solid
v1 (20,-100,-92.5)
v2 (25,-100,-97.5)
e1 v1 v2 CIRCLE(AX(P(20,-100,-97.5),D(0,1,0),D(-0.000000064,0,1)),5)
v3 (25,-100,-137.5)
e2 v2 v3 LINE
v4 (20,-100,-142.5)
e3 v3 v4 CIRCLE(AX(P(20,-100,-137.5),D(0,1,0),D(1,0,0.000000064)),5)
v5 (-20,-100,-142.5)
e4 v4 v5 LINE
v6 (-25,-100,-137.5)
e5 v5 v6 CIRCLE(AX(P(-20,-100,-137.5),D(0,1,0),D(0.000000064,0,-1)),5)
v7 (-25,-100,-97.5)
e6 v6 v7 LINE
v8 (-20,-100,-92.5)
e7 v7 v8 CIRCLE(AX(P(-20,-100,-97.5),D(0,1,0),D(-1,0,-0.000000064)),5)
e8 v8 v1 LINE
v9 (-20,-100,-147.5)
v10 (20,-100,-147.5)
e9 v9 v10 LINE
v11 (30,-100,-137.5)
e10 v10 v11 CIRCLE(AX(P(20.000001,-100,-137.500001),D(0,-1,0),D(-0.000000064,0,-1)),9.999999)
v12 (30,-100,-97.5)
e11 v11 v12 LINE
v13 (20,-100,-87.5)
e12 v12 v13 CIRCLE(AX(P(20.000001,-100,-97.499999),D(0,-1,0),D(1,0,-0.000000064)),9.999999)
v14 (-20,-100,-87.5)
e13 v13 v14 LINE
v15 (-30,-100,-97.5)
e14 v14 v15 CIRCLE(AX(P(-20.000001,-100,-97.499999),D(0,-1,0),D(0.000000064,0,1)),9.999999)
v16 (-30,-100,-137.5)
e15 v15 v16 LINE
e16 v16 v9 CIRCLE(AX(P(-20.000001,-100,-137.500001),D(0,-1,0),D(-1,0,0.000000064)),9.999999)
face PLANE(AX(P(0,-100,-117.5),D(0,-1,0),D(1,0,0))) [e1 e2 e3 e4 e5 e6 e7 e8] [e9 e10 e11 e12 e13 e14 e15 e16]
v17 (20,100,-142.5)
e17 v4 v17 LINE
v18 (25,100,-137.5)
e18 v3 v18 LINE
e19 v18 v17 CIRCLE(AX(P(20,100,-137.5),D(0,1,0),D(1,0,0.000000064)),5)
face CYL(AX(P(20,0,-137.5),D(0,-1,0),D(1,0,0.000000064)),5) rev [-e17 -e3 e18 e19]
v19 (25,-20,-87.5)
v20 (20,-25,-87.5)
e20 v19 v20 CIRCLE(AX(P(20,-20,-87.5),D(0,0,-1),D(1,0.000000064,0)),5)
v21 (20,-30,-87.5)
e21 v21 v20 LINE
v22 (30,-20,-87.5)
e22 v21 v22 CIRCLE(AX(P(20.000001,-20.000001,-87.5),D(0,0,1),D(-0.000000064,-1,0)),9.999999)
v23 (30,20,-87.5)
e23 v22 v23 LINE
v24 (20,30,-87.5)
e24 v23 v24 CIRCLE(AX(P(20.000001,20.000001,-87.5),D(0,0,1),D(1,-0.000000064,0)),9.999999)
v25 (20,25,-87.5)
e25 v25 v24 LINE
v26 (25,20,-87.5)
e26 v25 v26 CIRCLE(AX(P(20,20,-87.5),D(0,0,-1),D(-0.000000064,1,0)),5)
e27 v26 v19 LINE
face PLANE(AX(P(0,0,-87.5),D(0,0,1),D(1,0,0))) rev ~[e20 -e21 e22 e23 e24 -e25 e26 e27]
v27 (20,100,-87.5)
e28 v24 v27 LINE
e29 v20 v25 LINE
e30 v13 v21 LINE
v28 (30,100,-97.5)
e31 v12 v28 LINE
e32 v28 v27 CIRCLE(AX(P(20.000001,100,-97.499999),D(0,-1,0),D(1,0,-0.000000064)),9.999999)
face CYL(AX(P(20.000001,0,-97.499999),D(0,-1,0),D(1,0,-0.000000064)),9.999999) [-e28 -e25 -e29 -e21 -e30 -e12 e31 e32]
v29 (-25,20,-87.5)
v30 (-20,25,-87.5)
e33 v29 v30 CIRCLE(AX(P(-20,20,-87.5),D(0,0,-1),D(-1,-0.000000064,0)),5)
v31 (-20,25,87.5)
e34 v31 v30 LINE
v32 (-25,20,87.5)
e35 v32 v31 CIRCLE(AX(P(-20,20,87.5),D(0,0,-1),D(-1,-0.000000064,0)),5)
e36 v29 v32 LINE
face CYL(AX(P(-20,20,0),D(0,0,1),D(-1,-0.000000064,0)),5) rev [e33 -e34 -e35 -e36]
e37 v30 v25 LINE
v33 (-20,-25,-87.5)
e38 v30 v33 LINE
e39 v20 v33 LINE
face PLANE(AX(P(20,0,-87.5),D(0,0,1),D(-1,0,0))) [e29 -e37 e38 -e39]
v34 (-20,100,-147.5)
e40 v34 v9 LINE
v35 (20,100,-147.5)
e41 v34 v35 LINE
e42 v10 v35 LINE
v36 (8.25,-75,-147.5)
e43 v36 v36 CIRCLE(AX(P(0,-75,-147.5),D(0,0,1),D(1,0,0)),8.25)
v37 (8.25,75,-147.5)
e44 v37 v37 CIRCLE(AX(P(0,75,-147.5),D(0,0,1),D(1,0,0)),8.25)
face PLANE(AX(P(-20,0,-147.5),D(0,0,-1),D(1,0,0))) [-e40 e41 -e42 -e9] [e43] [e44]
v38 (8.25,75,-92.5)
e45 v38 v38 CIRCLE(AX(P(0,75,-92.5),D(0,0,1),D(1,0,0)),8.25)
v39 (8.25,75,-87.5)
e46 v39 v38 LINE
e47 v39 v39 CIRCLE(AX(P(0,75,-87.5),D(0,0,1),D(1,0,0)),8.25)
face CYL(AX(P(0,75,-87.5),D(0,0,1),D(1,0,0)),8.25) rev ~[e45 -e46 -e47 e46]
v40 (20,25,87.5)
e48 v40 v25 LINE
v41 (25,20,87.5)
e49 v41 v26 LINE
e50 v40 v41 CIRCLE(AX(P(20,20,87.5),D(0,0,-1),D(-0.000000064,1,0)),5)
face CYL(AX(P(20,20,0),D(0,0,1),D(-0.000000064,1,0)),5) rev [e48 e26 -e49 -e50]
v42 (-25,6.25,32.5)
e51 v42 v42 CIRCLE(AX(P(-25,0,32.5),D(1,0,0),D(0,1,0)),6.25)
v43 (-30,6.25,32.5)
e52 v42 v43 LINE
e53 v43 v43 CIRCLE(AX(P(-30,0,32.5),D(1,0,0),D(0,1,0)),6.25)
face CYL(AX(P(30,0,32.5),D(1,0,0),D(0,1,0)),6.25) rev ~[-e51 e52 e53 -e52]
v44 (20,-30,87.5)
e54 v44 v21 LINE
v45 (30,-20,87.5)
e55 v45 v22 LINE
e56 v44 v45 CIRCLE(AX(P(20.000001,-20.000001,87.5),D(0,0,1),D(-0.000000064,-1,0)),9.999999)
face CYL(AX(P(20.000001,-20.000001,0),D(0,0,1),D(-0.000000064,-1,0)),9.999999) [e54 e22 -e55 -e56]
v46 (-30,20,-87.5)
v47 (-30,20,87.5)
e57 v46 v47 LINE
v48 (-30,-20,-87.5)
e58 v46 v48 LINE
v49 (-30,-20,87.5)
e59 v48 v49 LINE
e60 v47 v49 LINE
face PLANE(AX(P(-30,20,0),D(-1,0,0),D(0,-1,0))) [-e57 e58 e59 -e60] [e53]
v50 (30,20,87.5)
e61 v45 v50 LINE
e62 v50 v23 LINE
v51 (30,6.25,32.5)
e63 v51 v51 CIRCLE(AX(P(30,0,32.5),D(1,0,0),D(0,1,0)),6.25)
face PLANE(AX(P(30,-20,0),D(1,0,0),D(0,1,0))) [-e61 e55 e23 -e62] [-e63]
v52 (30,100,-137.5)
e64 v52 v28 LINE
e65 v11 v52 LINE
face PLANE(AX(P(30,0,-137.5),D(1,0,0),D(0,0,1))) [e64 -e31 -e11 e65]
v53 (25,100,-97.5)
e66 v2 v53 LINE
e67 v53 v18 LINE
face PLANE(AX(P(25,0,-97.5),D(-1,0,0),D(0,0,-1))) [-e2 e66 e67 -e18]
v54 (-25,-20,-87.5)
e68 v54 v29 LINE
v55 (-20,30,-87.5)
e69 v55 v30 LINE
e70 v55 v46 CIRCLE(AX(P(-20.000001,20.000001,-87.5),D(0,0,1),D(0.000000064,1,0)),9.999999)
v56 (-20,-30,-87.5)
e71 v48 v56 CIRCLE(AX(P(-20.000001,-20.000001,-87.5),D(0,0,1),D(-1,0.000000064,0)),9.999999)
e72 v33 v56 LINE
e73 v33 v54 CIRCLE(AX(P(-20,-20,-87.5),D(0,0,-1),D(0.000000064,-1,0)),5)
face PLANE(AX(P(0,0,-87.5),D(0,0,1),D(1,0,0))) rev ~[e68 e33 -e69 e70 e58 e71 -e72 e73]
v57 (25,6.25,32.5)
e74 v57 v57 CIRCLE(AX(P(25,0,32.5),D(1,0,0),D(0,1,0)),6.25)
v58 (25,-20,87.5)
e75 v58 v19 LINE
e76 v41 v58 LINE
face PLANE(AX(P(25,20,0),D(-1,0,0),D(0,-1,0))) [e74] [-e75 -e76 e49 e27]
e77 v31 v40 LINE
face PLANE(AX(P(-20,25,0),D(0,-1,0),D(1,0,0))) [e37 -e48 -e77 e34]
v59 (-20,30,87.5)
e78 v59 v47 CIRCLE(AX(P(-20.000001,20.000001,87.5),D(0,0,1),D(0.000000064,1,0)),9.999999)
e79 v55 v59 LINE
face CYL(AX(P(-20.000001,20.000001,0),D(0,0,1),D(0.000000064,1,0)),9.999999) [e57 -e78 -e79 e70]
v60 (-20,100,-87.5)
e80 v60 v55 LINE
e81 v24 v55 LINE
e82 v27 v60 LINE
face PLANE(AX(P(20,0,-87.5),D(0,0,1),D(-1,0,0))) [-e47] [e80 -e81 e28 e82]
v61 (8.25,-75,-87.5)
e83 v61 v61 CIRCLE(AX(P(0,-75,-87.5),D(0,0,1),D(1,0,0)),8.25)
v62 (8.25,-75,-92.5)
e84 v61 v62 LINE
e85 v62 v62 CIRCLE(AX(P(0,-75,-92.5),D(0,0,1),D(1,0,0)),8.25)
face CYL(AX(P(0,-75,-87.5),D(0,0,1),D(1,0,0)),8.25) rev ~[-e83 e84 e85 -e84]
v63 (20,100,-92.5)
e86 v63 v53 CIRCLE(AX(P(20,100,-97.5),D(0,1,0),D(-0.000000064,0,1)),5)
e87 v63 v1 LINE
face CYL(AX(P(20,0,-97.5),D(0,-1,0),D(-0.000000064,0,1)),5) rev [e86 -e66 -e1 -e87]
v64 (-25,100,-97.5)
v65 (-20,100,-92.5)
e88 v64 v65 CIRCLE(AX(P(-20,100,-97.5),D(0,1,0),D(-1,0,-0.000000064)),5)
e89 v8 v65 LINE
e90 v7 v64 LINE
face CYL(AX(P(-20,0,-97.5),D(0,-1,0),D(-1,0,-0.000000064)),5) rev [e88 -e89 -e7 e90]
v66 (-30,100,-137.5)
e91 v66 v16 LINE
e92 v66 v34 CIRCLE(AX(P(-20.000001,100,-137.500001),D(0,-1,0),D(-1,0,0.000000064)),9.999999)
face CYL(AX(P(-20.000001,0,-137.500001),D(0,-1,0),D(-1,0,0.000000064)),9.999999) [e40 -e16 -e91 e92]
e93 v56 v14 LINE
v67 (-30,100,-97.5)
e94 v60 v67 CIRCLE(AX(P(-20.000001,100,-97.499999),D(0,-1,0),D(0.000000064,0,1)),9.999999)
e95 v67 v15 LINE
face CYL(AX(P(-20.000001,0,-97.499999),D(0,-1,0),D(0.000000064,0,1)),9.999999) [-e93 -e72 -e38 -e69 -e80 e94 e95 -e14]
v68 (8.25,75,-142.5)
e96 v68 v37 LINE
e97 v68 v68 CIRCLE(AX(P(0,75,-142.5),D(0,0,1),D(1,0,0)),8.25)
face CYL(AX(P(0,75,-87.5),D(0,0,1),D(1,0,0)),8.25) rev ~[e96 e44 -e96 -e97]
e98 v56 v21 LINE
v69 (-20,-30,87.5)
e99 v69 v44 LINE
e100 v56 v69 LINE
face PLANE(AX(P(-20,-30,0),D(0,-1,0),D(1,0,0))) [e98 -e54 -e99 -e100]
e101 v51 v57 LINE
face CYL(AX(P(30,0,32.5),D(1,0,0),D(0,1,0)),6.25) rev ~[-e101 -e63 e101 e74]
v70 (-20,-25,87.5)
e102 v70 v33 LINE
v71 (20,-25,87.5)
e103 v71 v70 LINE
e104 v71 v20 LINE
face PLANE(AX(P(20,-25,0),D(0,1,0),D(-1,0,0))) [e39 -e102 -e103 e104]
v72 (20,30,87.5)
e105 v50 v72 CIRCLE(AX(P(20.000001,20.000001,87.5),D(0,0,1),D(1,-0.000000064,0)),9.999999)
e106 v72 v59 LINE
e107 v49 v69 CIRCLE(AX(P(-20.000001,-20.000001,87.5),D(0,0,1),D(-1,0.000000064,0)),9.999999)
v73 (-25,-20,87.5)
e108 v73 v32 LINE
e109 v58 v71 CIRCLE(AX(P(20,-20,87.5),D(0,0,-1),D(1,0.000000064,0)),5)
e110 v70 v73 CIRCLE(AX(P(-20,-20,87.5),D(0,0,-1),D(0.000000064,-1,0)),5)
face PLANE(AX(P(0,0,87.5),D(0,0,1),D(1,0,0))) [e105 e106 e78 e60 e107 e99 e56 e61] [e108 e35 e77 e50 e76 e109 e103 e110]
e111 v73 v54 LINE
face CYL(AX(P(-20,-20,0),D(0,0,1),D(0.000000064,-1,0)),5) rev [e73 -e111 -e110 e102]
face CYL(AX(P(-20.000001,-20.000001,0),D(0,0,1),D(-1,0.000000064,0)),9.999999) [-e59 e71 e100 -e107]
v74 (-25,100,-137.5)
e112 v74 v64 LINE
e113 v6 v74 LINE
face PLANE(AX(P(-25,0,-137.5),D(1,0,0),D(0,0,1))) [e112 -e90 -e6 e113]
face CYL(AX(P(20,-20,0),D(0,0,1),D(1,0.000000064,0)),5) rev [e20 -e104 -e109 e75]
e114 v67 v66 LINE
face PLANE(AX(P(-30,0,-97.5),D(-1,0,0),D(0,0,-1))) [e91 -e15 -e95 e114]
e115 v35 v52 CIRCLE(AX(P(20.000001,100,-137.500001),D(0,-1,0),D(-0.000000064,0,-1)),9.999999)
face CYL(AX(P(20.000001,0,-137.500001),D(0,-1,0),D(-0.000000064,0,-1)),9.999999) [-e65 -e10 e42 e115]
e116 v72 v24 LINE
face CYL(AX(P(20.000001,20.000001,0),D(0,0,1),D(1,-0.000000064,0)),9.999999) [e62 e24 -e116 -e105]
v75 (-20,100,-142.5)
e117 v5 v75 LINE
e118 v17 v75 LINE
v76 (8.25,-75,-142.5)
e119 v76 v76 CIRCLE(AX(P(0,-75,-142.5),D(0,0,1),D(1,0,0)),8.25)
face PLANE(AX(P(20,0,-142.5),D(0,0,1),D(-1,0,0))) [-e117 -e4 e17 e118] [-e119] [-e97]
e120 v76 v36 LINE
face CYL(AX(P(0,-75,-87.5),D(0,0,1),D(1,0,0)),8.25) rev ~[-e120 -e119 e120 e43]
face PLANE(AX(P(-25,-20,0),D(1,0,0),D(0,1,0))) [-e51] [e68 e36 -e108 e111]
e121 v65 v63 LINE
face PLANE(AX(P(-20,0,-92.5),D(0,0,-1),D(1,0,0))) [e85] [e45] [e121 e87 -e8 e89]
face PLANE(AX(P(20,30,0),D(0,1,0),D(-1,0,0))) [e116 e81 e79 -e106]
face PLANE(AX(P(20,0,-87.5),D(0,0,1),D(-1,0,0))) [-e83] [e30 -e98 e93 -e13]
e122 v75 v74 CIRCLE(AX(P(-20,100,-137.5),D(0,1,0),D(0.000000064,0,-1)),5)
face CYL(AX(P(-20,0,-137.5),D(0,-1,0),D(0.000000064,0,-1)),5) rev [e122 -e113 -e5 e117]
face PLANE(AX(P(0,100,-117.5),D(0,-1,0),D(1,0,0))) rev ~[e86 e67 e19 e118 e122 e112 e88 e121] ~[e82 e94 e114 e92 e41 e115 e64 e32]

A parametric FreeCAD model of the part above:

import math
import FreeCAD as App
import Part
import Sketcher
Q = App.Units.Quantity

doc = App.newDocument("Part")
body = doc.addObject("PartDesign::Body", "Body")

# Sketch on XY plane
sketch1 = body.newObject("Sketcher::SketchObject", "Sketch")
sketch1.AttachmentSupport = (doc.getObject("XY_Plane"), [""])
sketch1.MapMode = "FlatFace"
sketch1.addGeometry([
    Part.LineSegment(App.Vector(20, 30, 0), App.Vector(-20, 30, 0)),  # 0
    Part.ArcOfCircle(Part.Circle(App.Vector(-20, 20, 0), App.Vector(0, 0, 1), 10), math.radians(90), math.radians(180)),  # 1
    Part.LineSegment(App.Vector(-30, 20, 0), App.Vector(-30, -20, 0)),  # 2
    Part.ArcOfCircle(Part.Circle(App.Vector(-20, -20, 0), App.Vector(0, 0, 1), 10), math.radians(180), math.radians(270)),  # 3
    Part.LineSegment(App.Vector(-20, -30, 0), App.Vector(20, -30, 0)),  # 4
    Part.ArcOfCircle(Part.Circle(App.Vector(20, -20, 0), App.Vector(0, 0, 1), 10), math.radians(-90), math.radians(0)),  # 5
    Part.LineSegment(App.Vector(30, -20, 0), App.Vector(30, 20, 0)),  # 6
    Part.ArcOfCircle(Part.Circle(App.Vector(20, 20, 0), App.Vector(0, 0, 1), 10), math.radians(0), math.radians(90)),  # 7
    Part.LineSegment(App.Vector(-25, -20, 0), App.Vector(-25, 20, 0)),  # 8
    Part.ArcOfCircle(Part.Circle(App.Vector(-20, 20, 0), App.Vector(0, 0, 1), 5), math.radians(90), math.radians(180)),  # 9
    Part.LineSegment(App.Vector(-20, 25, 0), App.Vector(20, 25, 0)),  # 10
    Part.ArcOfCircle(Part.Circle(App.Vector(20, 20, 0), App.Vector(0, 0, 1), 5), math.radians(0), math.radians(90)),  # 11
    Part.LineSegment(App.Vector(25, 20, 0), App.Vector(25, -20, 0)),  # 12
    Part.ArcOfCircle(Part.Circle(App.Vector(20, -20, 0), App.Vector(0, 0, 1), 5), math.radians(-90), math.radians(0)),  # 13
    Part.LineSegment(App.Vector(20, -25, 0), App.Vector(-20, -25, 0)),  # 14
    Part.ArcOfCircle(Part.Circle(App.Vector(-20, -20, 0), App.Vector(0, 0, 1), 5), math.radians(180), math.radians(270)),  # 15
], False)
sketch1.addConstraint([
    Sketcher.Constraint("Tangent", 0, 2, 1, 1),
    Sketcher.Constraint("Tangent", 1, 2, 2, 1),
    Sketcher.Constraint("Tangent", 2, 2, 3, 1),
    Sketcher.Constraint("Tangent", 3, 2, 4, 1),
    Sketcher.Constraint("Tangent", 4, 2, 5, 1),
    Sketcher.Constraint("Tangent", 5, 2, 6, 1),
    Sketcher.Constraint("Tangent", 6, 2, 7, 1),
    Sketcher.Constraint("Tangent", 7, 2, 0, 1),
    Sketcher.Constraint("Tangent", 8, 2, 9, 2),
    Sketcher.Constraint("Tangent", 9, 1, 10, 1),
    Sketcher.Constraint("Tangent", 10, 2, 11, 2),
    Sketcher.Constraint("Tangent", 11, 1, 12, 1),
    Sketcher.Constraint("Tangent", 12, 2, 13, 2),
    Sketcher.Constraint("Tangent", 13, 1, 14, 1),
    Sketcher.Constraint("Tangent", 14, 2, 15, 2),
    Sketcher.Constraint("Tangent", 15, 1, 8, 1),
    Sketcher.Constraint("Horizontal", 0),
    Sketcher.Constraint("Vertical", 2),
    Sketcher.Constraint("Horizontal", 4),
    Sketcher.Constraint("Vertical", 6),
    Sketcher.Constraint("Vertical", 8),
    Sketcher.Constraint("Horizontal", 10),
    Sketcher.Constraint("Vertical", 12),
    Sketcher.Constraint("Horizontal", 14),
    Sketcher.Constraint("Coincident", 9, 3, 1, 3),
    Sketcher.Constraint("Coincident", 11, 3, 7, 3),
    Sketcher.Constraint("Coincident", 13, 3, 5, 3),
    Sketcher.Constraint("Equal", 1, 3),
    Sketcher.Constraint("Equal", 3, 5),
    Sketcher.Constraint("Equal", 5, 7),
    Sketcher.Constraint("Equal", 13, 15),
    Sketcher.Constraint("Symmetric", 1, 3, 5, 3, -1, 1),
    Sketcher.Constraint("Equal", 14, 2),
    Sketcher.Constraint("Radius", 1, Q("9.999999 mm")),
    Sketcher.Constraint("Radius", 9, Q("5 mm")),
    Sketcher.Constraint("DistanceX", 0, 2, 0, 1, Q("40 mm")),
])
pad1 = body.newObject("PartDesign::Pad", "Pad")
pad1.Profile = sketch1
pad1.Length = 175
pad1.Midplane = True

# Sketch on XZ plane
sketch2 = body.newObject("Sketcher::SketchObject", "Sketch001")
sketch2.AttachmentSupport = (doc.getObject("XZ_Plane"), [""])
sketch2.MapMode = "FlatFace"
sketch2.addGeometry([
    Part.LineSegment(App.Vector(20, -87.5, 0), App.Vector(-20, -87.5, 0)),  # 0
    Part.ArcOfCircle(Part.Circle(App.Vector(-20, -97.5, 0), App.Vector(0, 0, 1), 10), math.radians(90), math.radians(180)),  # 1
    Part.LineSegment(App.Vector(-30, -97.5, 0), App.Vector(-30, -137.5, 0)),  # 2
    Part.ArcOfCircle(Part.Circle(App.Vector(-20, -137.5, 0), App.Vector(0, 0, 1), 10), math.radians(180), math.radians(270)),  # 3
    Part.LineSegment(App.Vector(-20, -147.5, 0), App.Vector(20, -147.5, 0)),  # 4
    Part.ArcOfCircle(Part.Circle(App.Vector(20, -137.5, 0), App.Vector(0, 0, 1), 10), math.radians(-90), math.radians(0)),  # 5
    Part.LineSegment(App.Vector(30, -137.5, 0), App.Vector(30, -97.5, 0)),  # 6
    Part.ArcOfCircle(Part.Circle(App.Vector(20, -97.5, 0), App.Vector(0, 0, 1), 10), math.radians(0), math.radians(90)),  # 7
    Part.LineSegment(App.Vector(-20, -92.5, 0), App.Vector(20, -92.5, 0)),  # 8
    Part.ArcOfCircle(Part.Circle(App.Vector(20, -97.5, 0), App.Vector(0, 0, 1), 5), math.radians(0), math.radians(90)),  # 9
    Part.LineSegment(App.Vector(25, -97.5, 0), App.Vector(25, -137.5, 0)),  # 10
    Part.ArcOfCircle(Part.Circle(App.Vector(20, -137.5, 0), App.Vector(0, 0, 1), 5), math.radians(-90), math.radians(0)),  # 11
    Part.LineSegment(App.Vector(20, -142.5, 0), App.Vector(-20, -142.5, 0)),  # 12
    Part.ArcOfCircle(Part.Circle(App.Vector(-20, -137.5, 0), App.Vector(0, 0, 1), 5), math.radians(180), math.radians(270)),  # 13
    Part.LineSegment(App.Vector(-25, -137.5, 0), App.Vector(-25, -97.5, 0)),  # 14
    Part.ArcOfCircle(Part.Circle(App.Vector(-20, -97.5, 0), App.Vector(0, 0, 1), 5), math.radians(90), math.radians(180)),  # 15
], False)
sketch2.addConstraint([
    Sketcher.Constraint("Tangent", 0, 2, 1, 1),
    Sketcher.Constraint("Tangent", 1, 2, 2, 1),
    Sketcher.Constraint("Tangent", 2, 2, 3, 1),
    Sketcher.Constraint("Tangent", 3, 2, 4, 1),
    Sketcher.Constraint("Tangent", 4, 2, 5, 1),
    Sketcher.Constraint("Tangent", 5, 2, 6, 1),
    Sketcher.Constraint("Tangent", 6, 2, 7, 1),
    Sketcher.Constraint("Tangent", 7, 2, 0, 1),
    Sketcher.Constraint("Tangent", 8, 2, 9, 2),
    Sketcher.Constraint("Tangent", 9, 1, 10, 1),
    Sketcher.Constraint("Tangent", 10, 2, 11, 2),
    Sketcher.Constraint("Tangent", 11, 1, 12, 1),
    Sketcher.Constraint("Tangent", 12, 2, 13, 2),
    Sketcher.Constraint("Tangent", 13, 1, 14, 1),
    Sketcher.Constraint("Tangent", 14, 2, 15, 2),
    Sketcher.Constraint("Tangent", 15, 1, 8, 1),
    Sketcher.Constraint("Horizontal", 0),
    Sketcher.Constraint("Vertical", 2),
    Sketcher.Constraint("Horizontal", 4),
    Sketcher.Constraint("Vertical", 6),
    Sketcher.Constraint("Horizontal", 8),
    Sketcher.Constraint("Vertical", 10),
    Sketcher.Constraint("Horizontal", 12),
    Sketcher.Constraint("Vertical", 14),
    Sketcher.Constraint("Coincident", 9, 3, 7, 3),
    Sketcher.Constraint("Coincident", 11, 3, 5, 3),
    Sketcher.Constraint("Coincident", 13, 3, 3, 3),
    Sketcher.Constraint("Equal", 1, 3),
    Sketcher.Constraint("Equal", 3, 5),
    Sketcher.Constraint("Equal", 5, 7),
    Sketcher.Constraint("Equal", 13, 15),
    Sketcher.Constraint("Equal", 12, 2),
    Sketcher.Constraint("Radius", 1, Q("9.999999 mm")),
    Sketcher.Constraint("Radius", 9, Q("5 mm")),
    Sketcher.Constraint("DistanceX", 0, 2, 0, 1, Q("40 mm")),
    Sketcher.Constraint("DistanceX", 1, 3, -1, 1, Q("20.000001 mm")),
    Sketcher.Constraint("DistanceY", 1, 3, -1, 1, Q("97.499999 mm")),
])
pad2 = body.newObject("PartDesign::Pad", "Pad001")
pad2.Profile = sketch2
pad2.Length = 200
pad2.Midplane = True

# Sketch on XY plane
sketch3 = body.newObject("Sketcher::SketchObject", "Sketch002")
sketch3.AttachmentSupport = (doc.getObject("XY_Plane"), [""])
sketch3.MapMode = "FlatFace"
sketch3.AttachmentOffset = App.Placement(App.Vector(0, 0, -87.5), App.Rotation())
sketch3.addGeometry([
    Part.Circle(App.Vector(0, 75, 0), App.Vector(0, 0, 1), 8),
    Part.Circle(App.Vector(0, -75, 0), App.Vector(0, 0, 1), 8),
], False)
sketch3.addConstraint([
    Sketcher.Constraint("Equal", 0, 1),
    Sketcher.Constraint("Symmetric", 0, 3, 1, 3, -1, 1),
    Sketcher.Constraint("PointOnObject", 0, 3, -2),
    Sketcher.Constraint("Diameter", 0, Q("16.5 mm")),
    Sketcher.Constraint("DistanceY", -1, 1, 0, 3, Q("75 mm")),
])
pocket1 = body.newObject("PartDesign::Pocket", "Pocket")
pocket1.Profile = sketch3
pocket1.Type = "ThroughAll"

# Sketch on YZ plane
sketch4 = body.newObject("Sketcher::SketchObject", "Sketch003")
sketch4.AttachmentSupport = (doc.getObject("YZ_Plane"), [""])
sketch4.MapMode = "FlatFace"
sketch4.AttachmentOffset = App.Placement(App.Vector(0, 0, 30), App.Rotation())
sketch4.addGeometry(Part.Circle(App.Vector(0, 32, 0), App.Vector(0, 0, 1), 6), False)
sketch4.addConstraint([
    Sketcher.Constraint("PointOnObject", 0, 3, -2),
    Sketcher.Constraint("Diameter", 0, Q("12.5 mm")),
    Sketcher.Constraint("DistanceY", -1, 1, 0, 3, Q("32.5 mm")),
])
pocket2 = body.newObject("PartDesign::Pocket", "Pocket001")
pocket2.Profile = sketch4
pocket2.Type = "ThroughAll"

doc.recompute()
